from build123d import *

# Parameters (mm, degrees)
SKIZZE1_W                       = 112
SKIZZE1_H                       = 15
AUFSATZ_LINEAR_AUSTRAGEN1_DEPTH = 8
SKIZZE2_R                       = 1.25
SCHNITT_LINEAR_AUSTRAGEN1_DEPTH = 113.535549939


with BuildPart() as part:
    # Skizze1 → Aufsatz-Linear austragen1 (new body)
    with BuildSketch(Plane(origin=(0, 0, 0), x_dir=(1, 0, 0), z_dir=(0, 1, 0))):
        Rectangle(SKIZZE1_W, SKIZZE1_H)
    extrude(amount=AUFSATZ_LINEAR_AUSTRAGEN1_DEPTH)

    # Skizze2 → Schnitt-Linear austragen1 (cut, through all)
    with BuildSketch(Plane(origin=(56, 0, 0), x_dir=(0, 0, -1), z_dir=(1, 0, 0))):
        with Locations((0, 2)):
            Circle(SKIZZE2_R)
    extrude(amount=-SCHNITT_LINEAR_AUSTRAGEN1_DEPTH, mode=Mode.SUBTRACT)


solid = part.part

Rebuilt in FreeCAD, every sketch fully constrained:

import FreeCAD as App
import Part
import Sketcher
from FreeCAD import Vector


def add_polygon(sketch, points):
    """Adds a closed chain of lines whose ends are joined by coincident constraints."""
    first, n = sketch.GeometryCount, len(points)
    for a, b in zip(points, points[1:] + points[:1]):
        sketch.addGeometry(Part.LineSegment(App.Vector(*a, 0), App.Vector(*b, 0)), False)
    for i in range(n):
        sketch.addConstraint(Sketcher.Constraint("Coincident", first + i, 2, first + (i + 1) % n, 1))

doc = App.newDocument("Part")
params = doc.addObject("Spreadsheet::Sheet", "Params")
for row, (alias, value) in enumerate([
    ("sketch1_width", "112 mm"),
    ("sketch1_height", "15 mm"),
    ("pad1_length", "8 mm"),
    ("sketch2_diameter", "2.5 mm"),
], start=1):
    params.set(f"A{row}", alias)
    params.set(f"B{row}", "=" + value)
    params.setAlias(f"B{row}", alias)

body = doc.addObject("PartDesign::Body", "Body")

sketch1 = doc.addObject("Sketcher::SketchObject", "Sketch")
body.addObject(sketch1)
sketch1.AttachmentSupport = (doc.XZ_Plane, [""])
sketch1.MapMode = "FlatFace"
add_polygon(sketch1, [(-56, -8), (-56, 8), (56, 8), (56, -8)])
sketch1.addConstraint(Sketcher.Constraint("Vertical", 0))
sketch1.addConstraint(Sketcher.Constraint("Horizontal", 1))
sketch1.addConstraint(Sketcher.Constraint("Vertical", 2))
sketch1.addConstraint(Sketcher.Constraint("Horizontal", 3))
sketch1.addConstraint(Sketcher.Constraint("Symmetric", 0, 2, 2, 2, -1, 1))
sketch1.addConstraint(Sketcher.Constraint("DistanceX", 1, 1, 1, 2, 112.0))
sketch1.addConstraint(Sketcher.Constraint("DistanceY", 0, 1, 0, 2, 15.0))
sketch1.setExpression("Constraints[9]", "Params.sketch1_width")
sketch1.setExpression("Constraints[10]", "Params.sketch1_height")
pad1 = doc.addObject("PartDesign::Pad", "Pad")
body.addObject(pad1)
pad1.Profile = sketch1
pad1.setExpression("Length", "Params.pad1_length")
pad1.Reversed = True

sketch2 = doc.addObject("Sketcher::SketchObject", "Sketch001")
body.addObject(sketch2)
sketch2.AttachmentSupport = (doc.YZ_Plane, [""])
sketch2.MapMode = "FlatFace"
sketch2.AttachmentOffset = App.Placement(Vector(0, 0, 56), App.Rotation())
sketch2.addGeometry(Part.Circle(Vector(2, 0, 0), Vector(0, 0, 1), 1.2), False)
sketch2.addConstraint(Sketcher.Constraint("PointOnObject", 0, 3, -1))
sketch2.addConstraint(Sketcher.Constraint("Diameter", 0, 2.5))
sketch2.addConstraint(Sketcher.Constraint("DistanceX", -1, 1, 0, 3, 2.0))
sketch2.setExpression("Constraints[1]", "Params.sketch2_diameter")
pocket1 = doc.addObject("PartDesign::Pocket", "Pocket")
body.addObject(pocket1)
pocket1.Profile = sketch2
pocket1.Type = "ThroughAll"

doc.recompute()
